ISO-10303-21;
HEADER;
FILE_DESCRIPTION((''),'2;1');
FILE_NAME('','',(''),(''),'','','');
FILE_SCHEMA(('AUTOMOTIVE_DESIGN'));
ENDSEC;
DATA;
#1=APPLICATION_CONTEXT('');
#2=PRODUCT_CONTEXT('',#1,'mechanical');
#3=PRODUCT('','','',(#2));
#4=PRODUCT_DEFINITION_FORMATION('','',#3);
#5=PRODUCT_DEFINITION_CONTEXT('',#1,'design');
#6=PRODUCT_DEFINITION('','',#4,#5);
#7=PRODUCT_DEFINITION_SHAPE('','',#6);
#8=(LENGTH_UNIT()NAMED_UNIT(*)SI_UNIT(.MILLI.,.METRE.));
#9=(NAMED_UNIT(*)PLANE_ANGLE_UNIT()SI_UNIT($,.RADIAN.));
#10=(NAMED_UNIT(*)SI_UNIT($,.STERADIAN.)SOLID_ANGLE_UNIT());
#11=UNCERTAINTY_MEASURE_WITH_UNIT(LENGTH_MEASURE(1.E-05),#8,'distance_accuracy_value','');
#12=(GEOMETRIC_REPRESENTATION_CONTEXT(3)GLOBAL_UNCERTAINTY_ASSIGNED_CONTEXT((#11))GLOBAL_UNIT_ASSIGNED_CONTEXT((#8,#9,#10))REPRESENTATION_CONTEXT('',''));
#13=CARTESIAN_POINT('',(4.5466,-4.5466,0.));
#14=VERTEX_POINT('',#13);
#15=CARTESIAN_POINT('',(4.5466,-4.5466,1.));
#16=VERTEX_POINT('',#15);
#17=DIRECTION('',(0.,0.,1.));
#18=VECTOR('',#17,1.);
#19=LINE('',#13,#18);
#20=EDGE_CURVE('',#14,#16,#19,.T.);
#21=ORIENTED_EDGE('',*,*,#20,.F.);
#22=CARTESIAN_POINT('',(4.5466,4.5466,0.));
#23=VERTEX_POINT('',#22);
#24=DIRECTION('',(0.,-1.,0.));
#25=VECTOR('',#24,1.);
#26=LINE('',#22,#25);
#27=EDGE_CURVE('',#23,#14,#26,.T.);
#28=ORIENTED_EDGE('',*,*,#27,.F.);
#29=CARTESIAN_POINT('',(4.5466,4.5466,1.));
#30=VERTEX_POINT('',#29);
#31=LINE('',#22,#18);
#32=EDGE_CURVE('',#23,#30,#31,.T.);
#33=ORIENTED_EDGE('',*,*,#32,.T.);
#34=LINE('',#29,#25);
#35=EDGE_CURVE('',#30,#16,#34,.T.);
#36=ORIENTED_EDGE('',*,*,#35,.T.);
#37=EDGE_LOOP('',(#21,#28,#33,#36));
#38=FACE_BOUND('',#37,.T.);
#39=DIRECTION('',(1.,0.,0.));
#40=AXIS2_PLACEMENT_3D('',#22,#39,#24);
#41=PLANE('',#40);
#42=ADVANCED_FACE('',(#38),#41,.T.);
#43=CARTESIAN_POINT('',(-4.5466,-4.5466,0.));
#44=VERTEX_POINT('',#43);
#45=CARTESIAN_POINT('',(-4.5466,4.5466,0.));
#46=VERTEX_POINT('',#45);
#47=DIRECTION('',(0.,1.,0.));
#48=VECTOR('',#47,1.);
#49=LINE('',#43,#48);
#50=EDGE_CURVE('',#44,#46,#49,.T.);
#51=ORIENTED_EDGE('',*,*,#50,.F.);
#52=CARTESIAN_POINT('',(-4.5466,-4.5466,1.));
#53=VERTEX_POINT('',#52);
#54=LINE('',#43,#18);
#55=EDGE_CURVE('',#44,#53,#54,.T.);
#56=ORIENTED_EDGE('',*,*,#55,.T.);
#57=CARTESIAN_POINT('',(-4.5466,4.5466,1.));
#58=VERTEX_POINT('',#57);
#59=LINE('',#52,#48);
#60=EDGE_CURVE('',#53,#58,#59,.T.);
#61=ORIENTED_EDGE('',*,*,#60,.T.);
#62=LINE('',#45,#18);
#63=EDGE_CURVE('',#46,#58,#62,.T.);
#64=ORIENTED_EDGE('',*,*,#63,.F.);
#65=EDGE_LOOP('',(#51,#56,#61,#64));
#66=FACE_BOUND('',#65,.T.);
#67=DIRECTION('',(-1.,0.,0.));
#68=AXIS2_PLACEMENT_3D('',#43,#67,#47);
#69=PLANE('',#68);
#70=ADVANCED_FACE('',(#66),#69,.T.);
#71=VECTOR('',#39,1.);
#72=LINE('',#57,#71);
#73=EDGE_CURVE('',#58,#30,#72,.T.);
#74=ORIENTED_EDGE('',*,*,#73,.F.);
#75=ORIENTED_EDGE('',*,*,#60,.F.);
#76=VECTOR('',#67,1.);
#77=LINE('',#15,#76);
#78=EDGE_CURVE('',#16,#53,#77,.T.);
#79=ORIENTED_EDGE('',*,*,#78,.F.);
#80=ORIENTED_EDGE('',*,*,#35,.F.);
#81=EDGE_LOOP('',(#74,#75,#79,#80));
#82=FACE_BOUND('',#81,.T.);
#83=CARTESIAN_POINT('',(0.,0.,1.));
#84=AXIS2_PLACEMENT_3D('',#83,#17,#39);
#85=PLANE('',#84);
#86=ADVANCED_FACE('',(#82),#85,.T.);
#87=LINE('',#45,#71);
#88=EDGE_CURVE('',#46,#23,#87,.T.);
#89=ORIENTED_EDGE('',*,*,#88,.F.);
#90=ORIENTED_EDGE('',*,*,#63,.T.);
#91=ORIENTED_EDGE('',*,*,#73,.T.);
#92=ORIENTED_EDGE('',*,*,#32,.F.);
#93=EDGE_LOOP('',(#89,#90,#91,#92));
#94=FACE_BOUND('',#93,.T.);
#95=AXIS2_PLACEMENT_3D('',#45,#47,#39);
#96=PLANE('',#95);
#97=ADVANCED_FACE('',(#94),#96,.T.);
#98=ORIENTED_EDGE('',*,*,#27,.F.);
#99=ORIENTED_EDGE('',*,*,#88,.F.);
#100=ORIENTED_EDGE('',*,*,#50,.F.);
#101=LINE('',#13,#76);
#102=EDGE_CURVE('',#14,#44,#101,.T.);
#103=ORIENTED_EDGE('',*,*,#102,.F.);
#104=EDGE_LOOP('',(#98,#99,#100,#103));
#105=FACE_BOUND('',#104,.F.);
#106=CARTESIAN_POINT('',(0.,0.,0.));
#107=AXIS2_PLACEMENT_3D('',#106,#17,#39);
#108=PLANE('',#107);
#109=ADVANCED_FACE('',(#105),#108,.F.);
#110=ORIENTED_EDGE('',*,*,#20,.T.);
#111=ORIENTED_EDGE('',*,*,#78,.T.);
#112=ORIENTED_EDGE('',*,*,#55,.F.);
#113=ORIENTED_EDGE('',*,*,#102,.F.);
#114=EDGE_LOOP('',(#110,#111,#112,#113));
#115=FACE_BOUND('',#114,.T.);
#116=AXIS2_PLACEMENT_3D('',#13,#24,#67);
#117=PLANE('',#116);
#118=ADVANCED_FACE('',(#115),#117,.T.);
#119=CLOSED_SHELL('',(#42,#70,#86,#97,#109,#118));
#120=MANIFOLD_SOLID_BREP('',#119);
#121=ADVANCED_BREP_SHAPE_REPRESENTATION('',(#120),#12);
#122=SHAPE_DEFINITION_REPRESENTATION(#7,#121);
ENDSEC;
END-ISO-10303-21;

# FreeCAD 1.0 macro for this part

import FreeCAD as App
import Part
import Sketcher
from FreeCAD import Vector
Q = App.Units.Quantity

doc = App.newDocument("Part")
params = doc.addObject("Spreadsheet::Sheet", "Params")
for row, (alias, value) in enumerate([
    ("pad1_length", "1 mm"),
], start=1):
    params.set(f"A{row}", alias)
    params.set(f"B{row}", "=" + value)
    params.setAlias(f"B{row}", alias)

body = doc.addObject("PartDesign::Body", "Body")

sketch1 = body.newObject("Sketcher::SketchObject", "Sketch")
sketch1.AttachmentSupport = (doc.getObject("XY_Plane"), [""])
sketch1.MapMode = "FlatFace"
sketch1.addGeometry(Part.LineSegment(Vector(5, 5, 0), Vector(-5, 5, 0)), False)
sketch1.addGeometry(Part.LineSegment(Vector(-5, 5, 0), Vector(-5, -5, 0)), False)
sketch1.addGeometry(Part.LineSegment(Vector(-5, -5, 0), Vector(5, -5, 0)), False)
sketch1.addGeometry(Part.LineSegment(Vector(5, -5, 0), Vector(5, 5, 0)), False)
sketch1.addConstraint(Sketcher.Constraint("Coincident", 0, 2, 1, 1))
sketch1.addConstraint(Sketcher.Constraint("Coincident", 1, 2, 2, 1))
sketch1.addConstraint(Sketcher.Constraint("Coincident", 2, 2, 3, 1))
sketch1.addConstraint(Sketcher.Constraint("Coincident", 3, 2, 0, 1))
sketch1.addConstraint(Sketcher.Constraint("Horizontal", 0))
sketch1.addConstraint(Sketcher.Constraint("Vertical", 1))
sketch1.addConstraint(Sketcher.Constraint("Horizontal", 2))
sketch1.addConstraint(Sketcher.Constraint("Vertical", 3))
sketch1.addConstraint(Sketcher.Constraint("Symmetric", 0, 2, 2, 2, -1, 1))
sketch1.addConstraint(Sketcher.Constraint("Equal", 2, 1))
sketch1.addConstraint(Sketcher.Constraint("DistanceX", 0, 2, 0, 1, Q("9.0932 mm")))
pad1 = body.newObject("PartDesign::Pad", "Pad")
pad1.Profile = sketch1
pad1.setExpression("Length", "Params.pad1_length")

doc.recompute()
